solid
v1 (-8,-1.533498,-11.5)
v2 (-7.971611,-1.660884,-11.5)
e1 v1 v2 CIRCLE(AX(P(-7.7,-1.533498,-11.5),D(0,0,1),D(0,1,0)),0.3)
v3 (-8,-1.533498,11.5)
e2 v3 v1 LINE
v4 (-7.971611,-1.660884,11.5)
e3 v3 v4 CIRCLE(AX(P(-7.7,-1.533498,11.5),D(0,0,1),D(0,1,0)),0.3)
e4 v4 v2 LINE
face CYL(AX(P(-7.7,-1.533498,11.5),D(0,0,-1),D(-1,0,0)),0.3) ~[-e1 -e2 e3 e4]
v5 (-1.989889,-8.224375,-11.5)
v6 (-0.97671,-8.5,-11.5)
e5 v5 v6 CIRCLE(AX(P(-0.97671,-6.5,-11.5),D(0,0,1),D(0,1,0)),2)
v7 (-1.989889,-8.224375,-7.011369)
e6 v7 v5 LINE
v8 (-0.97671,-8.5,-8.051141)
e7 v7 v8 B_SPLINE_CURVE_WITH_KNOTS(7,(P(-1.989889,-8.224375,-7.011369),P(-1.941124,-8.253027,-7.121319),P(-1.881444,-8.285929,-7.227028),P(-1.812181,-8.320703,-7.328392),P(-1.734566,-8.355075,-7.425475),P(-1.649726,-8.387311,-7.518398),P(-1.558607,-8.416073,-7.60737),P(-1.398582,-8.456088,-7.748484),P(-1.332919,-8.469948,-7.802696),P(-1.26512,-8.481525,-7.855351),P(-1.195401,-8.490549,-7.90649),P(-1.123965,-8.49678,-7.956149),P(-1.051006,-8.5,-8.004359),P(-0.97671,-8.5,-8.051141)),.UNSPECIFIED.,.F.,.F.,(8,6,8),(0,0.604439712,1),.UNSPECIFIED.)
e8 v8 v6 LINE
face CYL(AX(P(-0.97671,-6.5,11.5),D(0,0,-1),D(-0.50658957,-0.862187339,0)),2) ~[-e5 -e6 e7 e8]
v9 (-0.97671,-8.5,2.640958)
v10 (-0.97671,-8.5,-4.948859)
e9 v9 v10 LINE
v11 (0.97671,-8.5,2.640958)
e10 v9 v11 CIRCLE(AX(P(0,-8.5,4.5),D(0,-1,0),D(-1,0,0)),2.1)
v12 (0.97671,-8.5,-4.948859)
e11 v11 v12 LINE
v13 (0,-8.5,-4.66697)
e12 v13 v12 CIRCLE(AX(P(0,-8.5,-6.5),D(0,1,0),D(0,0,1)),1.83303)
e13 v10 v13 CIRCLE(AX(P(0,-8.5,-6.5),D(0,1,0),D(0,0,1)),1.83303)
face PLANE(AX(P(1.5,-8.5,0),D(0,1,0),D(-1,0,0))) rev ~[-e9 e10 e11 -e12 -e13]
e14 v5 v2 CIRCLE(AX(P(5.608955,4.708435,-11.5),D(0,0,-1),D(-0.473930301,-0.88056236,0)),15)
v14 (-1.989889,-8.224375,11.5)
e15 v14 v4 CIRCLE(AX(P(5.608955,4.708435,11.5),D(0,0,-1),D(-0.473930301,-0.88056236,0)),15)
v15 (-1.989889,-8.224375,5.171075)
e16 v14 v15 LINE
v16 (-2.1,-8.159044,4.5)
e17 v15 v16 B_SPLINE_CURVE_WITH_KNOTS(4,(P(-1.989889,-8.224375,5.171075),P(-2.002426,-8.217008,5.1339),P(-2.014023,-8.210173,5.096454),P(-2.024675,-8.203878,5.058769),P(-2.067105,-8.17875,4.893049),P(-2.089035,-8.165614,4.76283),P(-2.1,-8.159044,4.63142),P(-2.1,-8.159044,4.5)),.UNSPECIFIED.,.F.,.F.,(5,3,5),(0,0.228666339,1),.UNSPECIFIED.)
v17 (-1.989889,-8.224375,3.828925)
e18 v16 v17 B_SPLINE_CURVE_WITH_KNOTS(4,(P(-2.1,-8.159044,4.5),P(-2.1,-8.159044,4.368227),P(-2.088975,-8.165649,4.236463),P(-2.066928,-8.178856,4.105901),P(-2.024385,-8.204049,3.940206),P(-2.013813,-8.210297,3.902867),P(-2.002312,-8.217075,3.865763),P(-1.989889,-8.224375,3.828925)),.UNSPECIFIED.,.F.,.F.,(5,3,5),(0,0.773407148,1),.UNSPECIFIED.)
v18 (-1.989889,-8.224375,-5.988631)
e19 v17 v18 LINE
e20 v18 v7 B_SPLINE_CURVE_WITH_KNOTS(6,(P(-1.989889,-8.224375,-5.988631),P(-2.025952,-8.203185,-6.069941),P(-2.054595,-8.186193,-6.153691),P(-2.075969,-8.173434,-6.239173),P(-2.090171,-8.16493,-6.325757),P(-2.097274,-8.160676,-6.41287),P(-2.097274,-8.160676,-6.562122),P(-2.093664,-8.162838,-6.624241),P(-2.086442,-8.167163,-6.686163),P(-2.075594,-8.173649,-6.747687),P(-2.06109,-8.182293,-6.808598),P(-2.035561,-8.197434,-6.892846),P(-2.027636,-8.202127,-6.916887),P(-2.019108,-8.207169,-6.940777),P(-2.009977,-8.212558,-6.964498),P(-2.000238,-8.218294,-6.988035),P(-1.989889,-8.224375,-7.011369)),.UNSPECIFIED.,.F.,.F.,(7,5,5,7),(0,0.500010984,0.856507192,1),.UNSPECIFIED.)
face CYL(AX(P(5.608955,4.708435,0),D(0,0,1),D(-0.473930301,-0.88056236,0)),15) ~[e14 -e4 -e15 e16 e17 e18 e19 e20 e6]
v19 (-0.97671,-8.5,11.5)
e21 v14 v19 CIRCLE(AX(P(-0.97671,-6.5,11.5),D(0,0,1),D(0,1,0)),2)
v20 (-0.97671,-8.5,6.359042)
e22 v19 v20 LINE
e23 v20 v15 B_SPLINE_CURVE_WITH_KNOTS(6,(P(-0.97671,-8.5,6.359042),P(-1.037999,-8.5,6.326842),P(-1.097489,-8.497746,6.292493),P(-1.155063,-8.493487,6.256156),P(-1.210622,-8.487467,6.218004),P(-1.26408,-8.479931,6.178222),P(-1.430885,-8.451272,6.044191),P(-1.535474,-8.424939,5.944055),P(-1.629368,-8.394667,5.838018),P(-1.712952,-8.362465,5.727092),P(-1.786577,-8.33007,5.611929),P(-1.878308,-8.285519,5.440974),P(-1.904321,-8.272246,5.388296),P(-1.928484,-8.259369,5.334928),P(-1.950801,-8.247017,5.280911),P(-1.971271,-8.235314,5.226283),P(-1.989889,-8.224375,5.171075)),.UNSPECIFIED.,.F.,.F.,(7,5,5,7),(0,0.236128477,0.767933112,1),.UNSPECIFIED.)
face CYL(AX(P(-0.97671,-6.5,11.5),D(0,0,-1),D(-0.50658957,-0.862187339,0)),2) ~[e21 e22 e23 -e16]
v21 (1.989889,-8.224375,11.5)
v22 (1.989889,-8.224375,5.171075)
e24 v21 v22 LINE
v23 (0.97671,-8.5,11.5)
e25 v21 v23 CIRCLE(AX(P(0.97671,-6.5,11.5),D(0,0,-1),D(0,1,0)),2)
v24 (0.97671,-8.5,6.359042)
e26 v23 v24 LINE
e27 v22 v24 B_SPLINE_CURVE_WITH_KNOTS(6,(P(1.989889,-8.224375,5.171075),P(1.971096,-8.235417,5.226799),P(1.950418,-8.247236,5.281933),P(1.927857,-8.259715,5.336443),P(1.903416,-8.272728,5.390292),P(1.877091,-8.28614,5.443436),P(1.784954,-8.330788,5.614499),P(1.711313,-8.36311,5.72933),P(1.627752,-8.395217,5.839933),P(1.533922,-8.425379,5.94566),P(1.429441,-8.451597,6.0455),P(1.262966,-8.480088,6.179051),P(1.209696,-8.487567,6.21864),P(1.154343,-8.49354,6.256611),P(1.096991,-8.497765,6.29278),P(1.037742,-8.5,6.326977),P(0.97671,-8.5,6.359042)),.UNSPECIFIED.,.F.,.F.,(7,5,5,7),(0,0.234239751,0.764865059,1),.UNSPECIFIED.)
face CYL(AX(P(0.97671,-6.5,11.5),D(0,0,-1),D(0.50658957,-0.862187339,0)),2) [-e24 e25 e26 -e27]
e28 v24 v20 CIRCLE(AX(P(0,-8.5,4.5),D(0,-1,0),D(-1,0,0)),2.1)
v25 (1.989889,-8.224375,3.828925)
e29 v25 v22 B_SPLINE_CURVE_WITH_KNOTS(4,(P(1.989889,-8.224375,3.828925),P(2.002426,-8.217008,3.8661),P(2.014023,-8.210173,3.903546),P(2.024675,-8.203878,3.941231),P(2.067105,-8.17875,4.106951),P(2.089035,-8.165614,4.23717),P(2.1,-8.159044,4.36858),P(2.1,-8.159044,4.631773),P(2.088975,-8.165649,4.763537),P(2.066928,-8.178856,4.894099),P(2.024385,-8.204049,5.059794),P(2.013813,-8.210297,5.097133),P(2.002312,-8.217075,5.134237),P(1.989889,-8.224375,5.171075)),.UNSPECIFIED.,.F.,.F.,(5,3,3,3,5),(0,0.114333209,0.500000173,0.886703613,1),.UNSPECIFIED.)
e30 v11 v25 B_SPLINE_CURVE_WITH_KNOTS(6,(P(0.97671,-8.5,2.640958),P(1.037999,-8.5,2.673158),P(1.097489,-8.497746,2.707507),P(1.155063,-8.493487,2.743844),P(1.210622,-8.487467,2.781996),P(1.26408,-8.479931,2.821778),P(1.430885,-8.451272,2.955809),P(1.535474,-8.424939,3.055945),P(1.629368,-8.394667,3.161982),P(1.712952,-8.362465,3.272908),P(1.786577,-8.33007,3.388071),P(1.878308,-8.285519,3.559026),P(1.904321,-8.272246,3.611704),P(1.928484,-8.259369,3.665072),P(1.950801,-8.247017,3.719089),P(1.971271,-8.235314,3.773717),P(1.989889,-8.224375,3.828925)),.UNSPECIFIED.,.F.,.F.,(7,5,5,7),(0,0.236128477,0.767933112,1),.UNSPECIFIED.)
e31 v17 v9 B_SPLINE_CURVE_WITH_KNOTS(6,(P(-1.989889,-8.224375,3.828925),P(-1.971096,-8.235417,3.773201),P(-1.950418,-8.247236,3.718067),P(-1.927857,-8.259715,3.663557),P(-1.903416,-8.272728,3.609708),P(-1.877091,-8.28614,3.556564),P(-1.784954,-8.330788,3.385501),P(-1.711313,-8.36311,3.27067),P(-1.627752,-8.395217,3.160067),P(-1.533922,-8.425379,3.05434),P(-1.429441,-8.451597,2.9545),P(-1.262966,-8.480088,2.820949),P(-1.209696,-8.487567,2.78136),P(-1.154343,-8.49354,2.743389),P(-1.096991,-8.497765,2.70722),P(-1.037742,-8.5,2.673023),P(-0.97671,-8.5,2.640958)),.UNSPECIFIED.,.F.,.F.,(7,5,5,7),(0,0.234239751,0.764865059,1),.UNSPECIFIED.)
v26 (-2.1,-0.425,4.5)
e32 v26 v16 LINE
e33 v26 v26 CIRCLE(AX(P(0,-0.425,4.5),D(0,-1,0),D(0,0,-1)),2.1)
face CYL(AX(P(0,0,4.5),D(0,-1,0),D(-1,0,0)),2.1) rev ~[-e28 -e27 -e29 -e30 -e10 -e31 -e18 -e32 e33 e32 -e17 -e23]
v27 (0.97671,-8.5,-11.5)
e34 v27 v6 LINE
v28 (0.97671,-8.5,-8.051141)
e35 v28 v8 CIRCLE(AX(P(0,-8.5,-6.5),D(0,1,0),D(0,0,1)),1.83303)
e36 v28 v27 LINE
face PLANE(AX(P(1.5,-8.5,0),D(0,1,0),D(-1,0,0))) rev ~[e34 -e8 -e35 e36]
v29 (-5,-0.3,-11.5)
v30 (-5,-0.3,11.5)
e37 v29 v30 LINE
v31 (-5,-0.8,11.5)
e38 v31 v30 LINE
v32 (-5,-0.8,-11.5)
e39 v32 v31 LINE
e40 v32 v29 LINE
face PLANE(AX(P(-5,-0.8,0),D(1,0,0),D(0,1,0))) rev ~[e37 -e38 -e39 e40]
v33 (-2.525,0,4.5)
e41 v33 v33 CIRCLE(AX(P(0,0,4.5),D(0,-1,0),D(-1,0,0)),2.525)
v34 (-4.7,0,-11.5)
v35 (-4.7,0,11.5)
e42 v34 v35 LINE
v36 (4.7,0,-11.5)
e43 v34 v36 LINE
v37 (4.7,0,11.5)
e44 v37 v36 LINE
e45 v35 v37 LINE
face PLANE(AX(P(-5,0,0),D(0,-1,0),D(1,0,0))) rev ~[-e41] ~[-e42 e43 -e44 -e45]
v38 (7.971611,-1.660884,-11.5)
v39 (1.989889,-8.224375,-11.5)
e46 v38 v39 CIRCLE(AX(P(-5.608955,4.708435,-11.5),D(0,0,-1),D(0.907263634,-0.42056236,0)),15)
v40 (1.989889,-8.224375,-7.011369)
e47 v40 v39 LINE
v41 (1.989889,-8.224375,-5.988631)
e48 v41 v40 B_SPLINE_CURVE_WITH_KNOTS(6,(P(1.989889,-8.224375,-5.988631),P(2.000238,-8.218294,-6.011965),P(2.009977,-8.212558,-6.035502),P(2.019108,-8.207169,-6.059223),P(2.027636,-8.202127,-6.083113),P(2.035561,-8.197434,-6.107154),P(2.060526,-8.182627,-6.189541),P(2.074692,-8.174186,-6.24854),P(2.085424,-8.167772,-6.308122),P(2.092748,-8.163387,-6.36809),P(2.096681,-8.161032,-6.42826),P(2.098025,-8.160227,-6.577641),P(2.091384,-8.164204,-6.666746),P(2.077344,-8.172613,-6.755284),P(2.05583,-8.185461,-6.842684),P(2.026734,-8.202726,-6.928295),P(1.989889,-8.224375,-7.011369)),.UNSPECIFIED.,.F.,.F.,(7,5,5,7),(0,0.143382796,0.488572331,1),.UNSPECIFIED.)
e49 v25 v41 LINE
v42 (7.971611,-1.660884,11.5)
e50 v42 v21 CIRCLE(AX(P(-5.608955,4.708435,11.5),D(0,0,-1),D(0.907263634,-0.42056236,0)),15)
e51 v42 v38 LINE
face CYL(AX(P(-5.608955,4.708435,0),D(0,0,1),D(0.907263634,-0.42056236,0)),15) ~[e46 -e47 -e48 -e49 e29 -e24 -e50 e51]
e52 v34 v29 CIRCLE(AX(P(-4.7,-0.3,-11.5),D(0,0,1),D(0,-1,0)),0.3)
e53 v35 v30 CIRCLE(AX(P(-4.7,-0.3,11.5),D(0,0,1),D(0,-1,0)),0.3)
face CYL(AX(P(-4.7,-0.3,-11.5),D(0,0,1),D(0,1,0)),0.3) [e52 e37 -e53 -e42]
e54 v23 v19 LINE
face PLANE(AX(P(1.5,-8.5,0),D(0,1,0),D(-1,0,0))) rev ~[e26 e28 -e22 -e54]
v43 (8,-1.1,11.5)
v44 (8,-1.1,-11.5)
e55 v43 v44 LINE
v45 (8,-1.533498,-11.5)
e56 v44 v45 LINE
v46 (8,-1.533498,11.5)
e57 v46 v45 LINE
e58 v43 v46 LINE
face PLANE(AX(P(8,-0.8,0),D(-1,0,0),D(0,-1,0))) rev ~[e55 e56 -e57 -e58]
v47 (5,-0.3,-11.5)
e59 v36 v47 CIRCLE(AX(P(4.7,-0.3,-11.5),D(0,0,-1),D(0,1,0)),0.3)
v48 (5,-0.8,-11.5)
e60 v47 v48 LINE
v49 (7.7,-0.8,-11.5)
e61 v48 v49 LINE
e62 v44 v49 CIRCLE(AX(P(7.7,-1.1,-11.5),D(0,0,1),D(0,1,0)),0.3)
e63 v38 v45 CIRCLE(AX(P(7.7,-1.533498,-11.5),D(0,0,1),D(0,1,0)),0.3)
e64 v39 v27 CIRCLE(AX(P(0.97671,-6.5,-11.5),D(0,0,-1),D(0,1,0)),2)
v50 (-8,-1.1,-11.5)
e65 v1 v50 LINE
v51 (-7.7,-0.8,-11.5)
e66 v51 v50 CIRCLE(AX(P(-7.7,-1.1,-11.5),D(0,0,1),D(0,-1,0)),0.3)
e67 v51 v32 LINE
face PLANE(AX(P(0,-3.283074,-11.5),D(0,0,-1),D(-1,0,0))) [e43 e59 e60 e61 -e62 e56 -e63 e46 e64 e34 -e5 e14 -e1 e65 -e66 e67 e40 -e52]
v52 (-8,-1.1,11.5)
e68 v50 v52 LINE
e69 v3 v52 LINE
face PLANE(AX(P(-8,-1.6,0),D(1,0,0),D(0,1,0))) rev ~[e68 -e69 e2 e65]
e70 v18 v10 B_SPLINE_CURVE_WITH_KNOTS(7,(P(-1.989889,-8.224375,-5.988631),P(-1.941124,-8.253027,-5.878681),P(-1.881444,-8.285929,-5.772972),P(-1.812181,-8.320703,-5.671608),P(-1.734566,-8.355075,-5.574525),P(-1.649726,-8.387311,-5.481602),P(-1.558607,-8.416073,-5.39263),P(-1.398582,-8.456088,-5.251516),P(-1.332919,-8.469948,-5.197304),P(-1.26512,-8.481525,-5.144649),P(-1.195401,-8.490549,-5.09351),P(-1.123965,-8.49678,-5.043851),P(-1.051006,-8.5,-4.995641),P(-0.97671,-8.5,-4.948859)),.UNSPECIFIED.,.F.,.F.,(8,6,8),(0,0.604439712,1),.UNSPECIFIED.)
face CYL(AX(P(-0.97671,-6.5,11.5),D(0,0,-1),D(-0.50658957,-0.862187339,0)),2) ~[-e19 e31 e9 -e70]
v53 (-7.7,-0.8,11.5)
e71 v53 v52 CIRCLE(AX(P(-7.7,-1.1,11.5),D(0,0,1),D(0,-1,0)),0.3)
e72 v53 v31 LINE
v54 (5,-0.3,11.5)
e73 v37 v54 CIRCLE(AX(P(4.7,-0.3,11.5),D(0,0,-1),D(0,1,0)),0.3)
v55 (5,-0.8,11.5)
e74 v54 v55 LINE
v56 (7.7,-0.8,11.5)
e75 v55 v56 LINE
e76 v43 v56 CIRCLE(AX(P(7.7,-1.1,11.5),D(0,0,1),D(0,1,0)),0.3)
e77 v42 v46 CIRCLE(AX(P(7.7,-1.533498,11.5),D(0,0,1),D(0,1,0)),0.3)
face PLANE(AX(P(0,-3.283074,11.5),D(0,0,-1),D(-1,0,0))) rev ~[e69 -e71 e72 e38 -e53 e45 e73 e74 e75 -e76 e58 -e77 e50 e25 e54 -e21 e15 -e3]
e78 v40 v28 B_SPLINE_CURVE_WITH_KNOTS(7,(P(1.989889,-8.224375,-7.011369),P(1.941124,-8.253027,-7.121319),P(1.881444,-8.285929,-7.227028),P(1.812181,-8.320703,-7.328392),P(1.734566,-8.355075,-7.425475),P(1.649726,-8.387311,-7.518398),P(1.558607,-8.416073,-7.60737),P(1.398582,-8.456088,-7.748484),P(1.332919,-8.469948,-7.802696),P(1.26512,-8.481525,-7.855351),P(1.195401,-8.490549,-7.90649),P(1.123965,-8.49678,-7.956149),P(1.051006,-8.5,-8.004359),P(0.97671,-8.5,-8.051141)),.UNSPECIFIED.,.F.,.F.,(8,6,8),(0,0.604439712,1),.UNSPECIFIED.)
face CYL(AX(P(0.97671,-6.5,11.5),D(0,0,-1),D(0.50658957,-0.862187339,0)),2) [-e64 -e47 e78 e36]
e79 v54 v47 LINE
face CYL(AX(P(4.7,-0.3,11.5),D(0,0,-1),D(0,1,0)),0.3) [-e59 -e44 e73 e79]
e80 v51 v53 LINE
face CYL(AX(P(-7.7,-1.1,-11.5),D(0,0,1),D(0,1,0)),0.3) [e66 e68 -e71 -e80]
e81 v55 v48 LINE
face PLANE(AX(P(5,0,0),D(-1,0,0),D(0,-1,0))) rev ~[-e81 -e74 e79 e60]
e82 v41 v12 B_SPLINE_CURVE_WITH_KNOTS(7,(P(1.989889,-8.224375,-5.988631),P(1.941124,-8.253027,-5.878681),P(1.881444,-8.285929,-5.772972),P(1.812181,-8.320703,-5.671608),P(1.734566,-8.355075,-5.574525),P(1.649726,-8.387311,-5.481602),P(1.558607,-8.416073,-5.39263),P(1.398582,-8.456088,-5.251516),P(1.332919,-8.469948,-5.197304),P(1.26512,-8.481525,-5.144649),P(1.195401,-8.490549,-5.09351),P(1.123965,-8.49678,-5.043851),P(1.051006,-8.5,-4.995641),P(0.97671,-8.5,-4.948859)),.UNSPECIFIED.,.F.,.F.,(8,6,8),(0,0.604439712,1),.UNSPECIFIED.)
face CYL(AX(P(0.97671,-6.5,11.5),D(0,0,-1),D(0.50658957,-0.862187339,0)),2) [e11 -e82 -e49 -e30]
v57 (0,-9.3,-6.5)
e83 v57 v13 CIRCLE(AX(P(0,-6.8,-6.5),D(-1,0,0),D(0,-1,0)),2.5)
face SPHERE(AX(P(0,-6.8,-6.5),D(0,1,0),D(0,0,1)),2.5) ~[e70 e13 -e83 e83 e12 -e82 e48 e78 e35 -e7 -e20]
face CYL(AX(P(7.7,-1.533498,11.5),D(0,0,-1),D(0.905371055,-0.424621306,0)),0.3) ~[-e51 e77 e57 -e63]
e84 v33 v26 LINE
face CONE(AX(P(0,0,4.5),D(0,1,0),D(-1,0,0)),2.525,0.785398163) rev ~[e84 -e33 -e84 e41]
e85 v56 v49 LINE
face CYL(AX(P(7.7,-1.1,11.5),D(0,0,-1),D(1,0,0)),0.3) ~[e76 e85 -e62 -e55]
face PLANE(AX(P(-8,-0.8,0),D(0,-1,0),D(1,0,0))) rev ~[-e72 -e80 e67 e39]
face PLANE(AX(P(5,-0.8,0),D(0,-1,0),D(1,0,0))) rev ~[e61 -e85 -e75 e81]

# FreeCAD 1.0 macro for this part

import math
import FreeCAD as App
import Part
import Sketcher
from FreeCAD import Vector


def edges_at(feature, points):
    """Names of the edges that pass closest to the given points."""
    edges = feature.Shape.Edges
    near = lambda p: min(range(len(edges)), key=lambda i: edges[i].distToShape(Part.Vertex(*p))[0])
    return sorted({f"Edge{near(p) + 1}" for p in points})

doc = App.newDocument("Part")
body = doc.addObject("PartDesign::Body", "Body")

sketch1 = doc.addObject("Sketcher::SketchObject", "Sketch")
body.addObject(sketch1)
sketch1.AttachmentSupport = (doc.XY_Plane, [""])
sketch1.MapMode = "FlatFace"
sketch1.addGeometry([
    Part.LineSegment(Vector(5, 0, 0), Vector(-5, 0, 0)),
    Part.LineSegment(Vector(-5, 0, 0), Vector(-5, -0.8, 0)),
    Part.LineSegment(Vector(-5, -0.8, 0), Vector(-8, -0.8, 0)),
    Part.LineSegment(Vector(-8, -0.8, 0), Vector(-8, -1.6, 0)),
    Part.ArcOfCircle(Part.Circle(Vector(5.6, 4.7, 0), Vector(0, 0, 1), 15), math.radians(-155), math.radians(-118)),
    Part.LineSegment(Vector(-1.5, -8.5, 0), Vector(1.5, -8.5, 0)),
    Part.ArcOfCircle(Part.Circle(Vector(-5.6, 4.7, 0), Vector(0, 0, 1), 15), math.radians(-62), math.radians(-25)),
    Part.LineSegment(Vector(8, -1.6, 0), Vector(8, -0.8, 0)),
    Part.LineSegment(Vector(8, -0.8, 0), Vector(5, -0.8, 0)),
    Part.LineSegment(Vector(5, -0.8, 0), Vector(5, 0, 0)),
], False)
sketch1.addConstraint([
    Sketcher.Constraint("Coincident", 0, 2, 1, 1),
    Sketcher.Constraint("Coincident", 1, 2, 2, 1),
    Sketcher.Constraint("Coincident", 2, 2, 3, 1),
    Sketcher.Constraint("Coincident", 3, 2, 4, 1),
    Sketcher.Constraint("Coincident", 4, 2, 5, 1),
    Sketcher.Constraint("Coincident", 5, 2, 6, 1),
    Sketcher.Constraint("Coincident", 6, 2, 7, 1),
    Sketcher.Constraint("Coincident", 7, 2, 8, 1),
    Sketcher.Constraint("Coincident", 8, 2, 9, 1),
    Sketcher.Constraint("Coincident", 9, 2, 0, 1),
    Sketcher.Constraint("Horizontal", 0),
    Sketcher.Constraint("Vertical", 1),
    Sketcher.Constraint("Horizontal", 2),
    Sketcher.Constraint("Vertical", 3),
    Sketcher.Constraint("Horizontal", 5),
    Sketcher.Constraint("Vertical", 7),
    Sketcher.Constraint("Horizontal", 8),
    Sketcher.Constraint("Vertical", 9),
    Sketcher.Constraint("Equal", 4, 6),
    Sketcher.Constraint("Symmetric", 0, 2, 9, 2, -1, 1),
    Sketcher.Constraint("Symmetric", 4, 3, 6, 3, -2),
    Sketcher.Constraint("Symmetric", 2, 2, 7, 2, -2),
    Sketcher.Constraint("Equal", 2, 5),
    Sketcher.Constraint("Equal", 1, 3),
    Sketcher.Constraint("Radius", 4, 15.0),
    Sketcher.Constraint("DistanceX", 0, 2, 0, 1, 10.0),
    Sketcher.Constraint("DistanceX", 2, 2, 2, 1, 3.0),
    Sketcher.Constraint("DistanceY", 1, 2, 1, 1, 0.8),
    Sketcher.Constraint("DistanceY", 4, 2, -1, 1, 8.5),
])
pad1 = doc.addObject("PartDesign::Pad", "Pad")
body.addObject(pad1)
pad1.Profile = sketch1
pad1.Length = 23
pad1.Midplane = True
doc.recompute()

fillet = doc.addObject("PartDesign::Fillet", "Fillet")
body.addObject(fillet)
fillet.Base = (pad1, edges_at(pad1, [
    (8, -0.8, 0),
    (8, -1.6, 0),
    (-8, -1.6, 0),
    (-8, -0.8, 0),
    (-5, 0, 0),
    (5, 0, 0),
]))
fillet.Radius = 0.3
doc.recompute()

fillet2 = doc.addObject("PartDesign::Fillet", "Fillet001")
body.addObject(fillet2)
fillet2.Base = (fillet, edges_at(fillet, [(1.5, -8.5, 0), (-1.5, -8.5, 0)]))
fillet2.Radius = 2

sketch2 = doc.addObject("Sketcher::SketchObject", "Sketch001")
body.addObject(sketch2)
sketch2.AttachmentSupport = (doc.XZ_Plane, [""])
sketch2.MapMode = "FlatFace"
sketch2.addGeometry(Part.Circle(Vector(0, 4.5, 0), Vector(0, 0, 1), 2.1), False)
sketch2.addConstraint([
    Sketcher.Constraint("PointOnObject", 0, 3, -2),
    Sketcher.Constraint("Diameter", 0, 4.2),
    Sketcher.Constraint("DistanceY", -1, 1, 0, 3, 4.5),
])
doc.recompute()
hole = doc.addObject("PartDesign::Hole", "Hole")
body.addObject(hole)
hole.Profile = sketch2
hole.ThreadType = "None"
hole.Diameter = 4.2
hole.DepthType = "ThroughAll"
hole.HoleCutType = "Countersink"
hole.HoleCutDiameter = 5.05
hole.HoleCutCountersinkAngle = 90
hole.Reversed = True

sketch3 = doc.addObject("Sketcher::SketchObject", "Sketch002")
body.addObject(sketch3)
sketch3.AttachmentSupport = (doc.YZ_Plane, [""])
sketch3.MapMode = "FlatFace"
sketch3.addGeometry([
    Part.LineSegment(Vector(-9.3, -6.5, 0), Vector(-4.3, -6.5, 0)),
    Part.ArcOfCircle(Part.Circle(Vector(-6.8, -6.5, 0), Vector(0, 0, 1), 2.5), math.radians(0), math.radians(180)),
], False)
sketch3.addGeometry(Part.LineSegment(Vector(-4.3, -6.5, 0), Vector(-9.3, -6.5, 0)), True)
sketch3.addConstraint([
    Sketcher.Constraint("Coincident", 0, 1, 1, 2),
    Sketcher.Constraint("Coincident", 1, 1, 0, 2),
    Sketcher.Constraint("Horizontal", 0),
    Sketcher.Constraint("Horizontal", 2),
    Sketcher.Constraint("Coincident", 2, 1, 1, 1),
    Sketcher.Constraint("Horizontal", 1, 3, 0, 1),
    Sketcher.Constraint("Equal", 0, 2),
    Sketcher.Constraint("Radius", 1, 2.5),
    Sketcher.Constraint("DistanceX", 1, 3, -1, 1, 6.8),
    Sketcher.Constraint("DistanceY", 1, 3, -1, 1, 6.5),
])
revolution = doc.addObject("PartDesign::Revolution", "Revolution")
body.addObject(revolution)
revolution.Profile = sketch3
revolution.ReferenceAxis = (sketch3, ["Axis0"])
revolution.Angle = 360

doc.recompute()
